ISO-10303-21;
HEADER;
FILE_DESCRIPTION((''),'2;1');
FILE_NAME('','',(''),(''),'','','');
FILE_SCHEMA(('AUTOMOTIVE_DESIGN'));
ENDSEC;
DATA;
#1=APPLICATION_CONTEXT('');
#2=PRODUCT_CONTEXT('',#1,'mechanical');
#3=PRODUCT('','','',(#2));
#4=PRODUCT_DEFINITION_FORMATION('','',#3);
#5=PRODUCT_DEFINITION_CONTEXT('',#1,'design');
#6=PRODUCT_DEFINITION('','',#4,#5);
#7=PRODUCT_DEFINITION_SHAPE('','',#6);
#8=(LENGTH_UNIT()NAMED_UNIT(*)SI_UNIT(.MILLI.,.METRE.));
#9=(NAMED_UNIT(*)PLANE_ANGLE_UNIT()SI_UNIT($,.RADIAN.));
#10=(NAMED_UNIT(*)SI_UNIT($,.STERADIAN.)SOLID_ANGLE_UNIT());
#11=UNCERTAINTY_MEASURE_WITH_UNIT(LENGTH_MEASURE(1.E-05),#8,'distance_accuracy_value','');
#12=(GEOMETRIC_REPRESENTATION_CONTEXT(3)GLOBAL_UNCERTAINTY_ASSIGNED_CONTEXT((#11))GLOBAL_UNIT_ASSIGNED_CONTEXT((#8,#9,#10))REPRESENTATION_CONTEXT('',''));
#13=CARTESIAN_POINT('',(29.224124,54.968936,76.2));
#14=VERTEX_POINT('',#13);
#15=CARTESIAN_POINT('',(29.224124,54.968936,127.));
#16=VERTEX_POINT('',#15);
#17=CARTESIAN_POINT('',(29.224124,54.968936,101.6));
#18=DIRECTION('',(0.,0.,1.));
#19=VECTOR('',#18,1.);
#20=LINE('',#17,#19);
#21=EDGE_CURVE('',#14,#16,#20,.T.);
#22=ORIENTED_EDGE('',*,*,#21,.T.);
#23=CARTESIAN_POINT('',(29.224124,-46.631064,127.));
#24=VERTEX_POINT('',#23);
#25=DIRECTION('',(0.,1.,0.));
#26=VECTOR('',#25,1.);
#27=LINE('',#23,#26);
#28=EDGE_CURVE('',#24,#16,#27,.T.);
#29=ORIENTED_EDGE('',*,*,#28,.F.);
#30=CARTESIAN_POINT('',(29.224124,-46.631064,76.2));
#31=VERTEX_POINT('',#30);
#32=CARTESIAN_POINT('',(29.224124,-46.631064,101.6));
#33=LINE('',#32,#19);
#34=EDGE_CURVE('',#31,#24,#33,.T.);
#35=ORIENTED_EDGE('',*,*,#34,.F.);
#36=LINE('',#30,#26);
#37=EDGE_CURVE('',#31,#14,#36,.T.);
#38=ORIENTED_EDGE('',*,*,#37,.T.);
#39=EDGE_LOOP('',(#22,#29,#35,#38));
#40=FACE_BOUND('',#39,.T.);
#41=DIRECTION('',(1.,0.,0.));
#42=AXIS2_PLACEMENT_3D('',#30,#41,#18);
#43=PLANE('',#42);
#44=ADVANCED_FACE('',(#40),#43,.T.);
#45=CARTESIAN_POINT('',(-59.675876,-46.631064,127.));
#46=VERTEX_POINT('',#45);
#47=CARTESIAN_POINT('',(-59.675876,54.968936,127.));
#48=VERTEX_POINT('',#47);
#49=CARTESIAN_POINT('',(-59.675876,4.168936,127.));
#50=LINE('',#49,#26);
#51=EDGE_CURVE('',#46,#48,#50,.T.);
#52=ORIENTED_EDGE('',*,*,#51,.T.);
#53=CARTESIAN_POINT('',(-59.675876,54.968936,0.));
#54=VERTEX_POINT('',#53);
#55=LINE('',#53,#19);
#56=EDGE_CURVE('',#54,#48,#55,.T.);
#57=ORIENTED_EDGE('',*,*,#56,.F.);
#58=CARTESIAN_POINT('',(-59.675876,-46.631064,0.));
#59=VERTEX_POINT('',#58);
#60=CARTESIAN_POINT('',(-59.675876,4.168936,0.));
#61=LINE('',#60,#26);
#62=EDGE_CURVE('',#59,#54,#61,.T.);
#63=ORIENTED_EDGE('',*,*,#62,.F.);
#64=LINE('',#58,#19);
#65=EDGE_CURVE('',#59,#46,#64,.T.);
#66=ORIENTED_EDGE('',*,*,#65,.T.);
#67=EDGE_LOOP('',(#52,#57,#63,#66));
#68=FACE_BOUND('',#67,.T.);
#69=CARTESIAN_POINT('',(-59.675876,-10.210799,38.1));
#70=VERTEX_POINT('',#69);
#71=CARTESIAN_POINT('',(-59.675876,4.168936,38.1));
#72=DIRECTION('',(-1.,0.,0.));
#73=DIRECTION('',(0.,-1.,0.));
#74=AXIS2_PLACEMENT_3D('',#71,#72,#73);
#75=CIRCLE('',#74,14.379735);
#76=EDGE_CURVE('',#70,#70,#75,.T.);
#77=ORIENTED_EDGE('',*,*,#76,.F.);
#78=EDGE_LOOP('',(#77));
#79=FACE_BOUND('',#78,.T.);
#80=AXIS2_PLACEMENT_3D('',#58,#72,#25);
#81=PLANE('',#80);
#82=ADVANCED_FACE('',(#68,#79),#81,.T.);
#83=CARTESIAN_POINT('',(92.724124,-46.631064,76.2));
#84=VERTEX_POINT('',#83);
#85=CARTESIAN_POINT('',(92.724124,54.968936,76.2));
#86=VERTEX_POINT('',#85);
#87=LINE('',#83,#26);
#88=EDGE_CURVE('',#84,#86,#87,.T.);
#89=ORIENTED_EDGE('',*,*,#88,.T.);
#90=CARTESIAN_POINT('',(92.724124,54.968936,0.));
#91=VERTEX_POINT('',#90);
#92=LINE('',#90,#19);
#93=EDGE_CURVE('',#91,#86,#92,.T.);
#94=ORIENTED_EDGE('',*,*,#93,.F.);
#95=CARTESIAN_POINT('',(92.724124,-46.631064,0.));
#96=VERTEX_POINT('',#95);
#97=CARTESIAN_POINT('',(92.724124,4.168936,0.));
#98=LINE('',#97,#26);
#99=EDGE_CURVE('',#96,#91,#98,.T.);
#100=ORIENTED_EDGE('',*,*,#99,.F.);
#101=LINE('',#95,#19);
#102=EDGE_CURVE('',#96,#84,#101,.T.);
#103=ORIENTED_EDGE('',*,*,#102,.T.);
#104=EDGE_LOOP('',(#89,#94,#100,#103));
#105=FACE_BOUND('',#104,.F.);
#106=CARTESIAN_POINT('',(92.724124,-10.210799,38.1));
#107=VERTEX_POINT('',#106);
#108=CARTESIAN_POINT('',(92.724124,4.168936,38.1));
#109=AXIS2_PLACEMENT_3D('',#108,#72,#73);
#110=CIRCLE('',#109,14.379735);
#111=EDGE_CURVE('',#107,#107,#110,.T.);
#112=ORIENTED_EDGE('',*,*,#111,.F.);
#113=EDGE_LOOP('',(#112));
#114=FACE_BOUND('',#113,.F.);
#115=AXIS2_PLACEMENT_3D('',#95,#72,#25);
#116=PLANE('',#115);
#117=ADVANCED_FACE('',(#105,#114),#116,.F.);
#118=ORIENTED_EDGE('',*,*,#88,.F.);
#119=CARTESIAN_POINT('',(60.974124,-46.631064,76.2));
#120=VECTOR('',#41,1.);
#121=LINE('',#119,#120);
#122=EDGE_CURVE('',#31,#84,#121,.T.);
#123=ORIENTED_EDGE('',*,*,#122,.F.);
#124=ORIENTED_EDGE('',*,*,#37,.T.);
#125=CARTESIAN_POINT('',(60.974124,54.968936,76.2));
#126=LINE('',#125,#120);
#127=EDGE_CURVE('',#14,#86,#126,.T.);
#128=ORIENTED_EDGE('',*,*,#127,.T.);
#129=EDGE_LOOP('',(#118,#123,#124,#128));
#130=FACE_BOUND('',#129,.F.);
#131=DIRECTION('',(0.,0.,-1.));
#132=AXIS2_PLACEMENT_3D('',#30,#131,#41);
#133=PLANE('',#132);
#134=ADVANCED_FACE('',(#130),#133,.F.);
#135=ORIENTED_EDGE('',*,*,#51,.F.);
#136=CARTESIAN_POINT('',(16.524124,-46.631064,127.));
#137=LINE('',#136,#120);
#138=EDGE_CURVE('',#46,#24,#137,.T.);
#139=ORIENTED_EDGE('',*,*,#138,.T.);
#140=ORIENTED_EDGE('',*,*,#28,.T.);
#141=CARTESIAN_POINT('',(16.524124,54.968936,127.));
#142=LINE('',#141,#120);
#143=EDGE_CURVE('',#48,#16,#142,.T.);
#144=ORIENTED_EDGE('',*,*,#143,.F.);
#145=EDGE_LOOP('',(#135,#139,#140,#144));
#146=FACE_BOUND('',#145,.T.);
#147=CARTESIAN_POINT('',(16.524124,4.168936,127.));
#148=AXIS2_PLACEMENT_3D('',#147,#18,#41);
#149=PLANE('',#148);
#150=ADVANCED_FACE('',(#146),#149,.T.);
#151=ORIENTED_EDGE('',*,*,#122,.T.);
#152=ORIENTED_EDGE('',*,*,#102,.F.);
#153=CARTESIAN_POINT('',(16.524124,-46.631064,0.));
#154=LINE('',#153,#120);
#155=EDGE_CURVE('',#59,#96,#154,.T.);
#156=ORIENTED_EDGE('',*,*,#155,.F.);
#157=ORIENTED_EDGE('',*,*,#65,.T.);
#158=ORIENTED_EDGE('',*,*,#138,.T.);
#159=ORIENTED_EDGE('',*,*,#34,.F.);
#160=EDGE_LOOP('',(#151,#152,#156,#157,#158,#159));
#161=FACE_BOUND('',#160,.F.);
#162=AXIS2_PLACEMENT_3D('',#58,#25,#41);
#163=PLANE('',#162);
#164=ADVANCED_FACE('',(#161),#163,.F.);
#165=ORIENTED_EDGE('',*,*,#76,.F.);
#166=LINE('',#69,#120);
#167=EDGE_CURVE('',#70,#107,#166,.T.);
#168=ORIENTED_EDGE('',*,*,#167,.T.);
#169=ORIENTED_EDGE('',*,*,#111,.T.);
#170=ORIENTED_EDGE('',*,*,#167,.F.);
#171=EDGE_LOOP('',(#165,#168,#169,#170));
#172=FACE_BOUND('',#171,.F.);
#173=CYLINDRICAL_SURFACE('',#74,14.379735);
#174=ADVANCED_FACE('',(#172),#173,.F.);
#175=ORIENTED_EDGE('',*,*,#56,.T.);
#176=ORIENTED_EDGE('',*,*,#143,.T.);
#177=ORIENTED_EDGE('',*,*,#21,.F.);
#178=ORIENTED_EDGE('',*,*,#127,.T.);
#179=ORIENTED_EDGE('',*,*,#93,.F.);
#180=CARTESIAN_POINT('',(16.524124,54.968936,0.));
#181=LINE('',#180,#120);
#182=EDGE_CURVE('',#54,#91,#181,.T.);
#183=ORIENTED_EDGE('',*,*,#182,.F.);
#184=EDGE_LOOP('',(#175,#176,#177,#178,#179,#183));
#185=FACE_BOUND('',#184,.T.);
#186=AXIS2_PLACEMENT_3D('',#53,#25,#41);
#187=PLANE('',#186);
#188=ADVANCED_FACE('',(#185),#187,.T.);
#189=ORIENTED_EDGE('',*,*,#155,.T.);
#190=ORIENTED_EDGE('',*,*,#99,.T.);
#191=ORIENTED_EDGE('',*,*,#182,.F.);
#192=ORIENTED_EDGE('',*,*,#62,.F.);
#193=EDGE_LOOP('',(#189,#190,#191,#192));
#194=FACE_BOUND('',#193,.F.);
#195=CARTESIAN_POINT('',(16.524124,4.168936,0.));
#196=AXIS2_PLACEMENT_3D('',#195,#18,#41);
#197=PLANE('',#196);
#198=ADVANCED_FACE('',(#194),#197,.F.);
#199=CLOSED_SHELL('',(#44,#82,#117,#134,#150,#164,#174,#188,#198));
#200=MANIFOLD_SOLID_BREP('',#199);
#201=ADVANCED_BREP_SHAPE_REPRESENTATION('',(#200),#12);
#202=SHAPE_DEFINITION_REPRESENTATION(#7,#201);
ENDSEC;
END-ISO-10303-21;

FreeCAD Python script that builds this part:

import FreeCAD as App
import Part
import Sketcher
Q = App.Units.Quantity

doc = App.newDocument("Part")
body = doc.addObject("PartDesign::Body", "Body")

# Sketch on XY plane
sketch1 = body.newObject("Sketcher::SketchObject", "Sketch")
sketch1.AttachmentSupport = (doc.getObject("XY_Plane"), [""])
sketch1.MapMode = "FlatFace"
sketch1.addGeometry([
    Part.LineSegment(App.Vector(-60, 55, 0), App.Vector(-60, -47, 0)),
    Part.LineSegment(App.Vector(-60, -47, 0), App.Vector(93, -47, 0)),
    Part.LineSegment(App.Vector(93, -47, 0), App.Vector(93, 55, 0)),
    Part.LineSegment(App.Vector(93, 55, 0), App.Vector(-60, 55, 0)),
], False)
sketch1.addConstraint([
    Sketcher.Constraint("Coincident", 0, 2, 1, 1),
    Sketcher.Constraint("Coincident", 1, 2, 2, 1),
    Sketcher.Constraint("Coincident", 2, 2, 3, 1),
    Sketcher.Constraint("Coincident", 3, 2, 0, 1),
    Sketcher.Constraint("Vertical", 0),
    Sketcher.Constraint("Horizontal", 1),
    Sketcher.Constraint("Vertical", 2),
    Sketcher.Constraint("Horizontal", 3),
    Sketcher.Constraint("DistanceX", 1, 1, 1, 2, Q("6 in")),
    Sketcher.Constraint("DistanceY", 0, 2, 0, 1, Q("4 in")),
    Sketcher.Constraint("DistanceX", 0, 2, -1, 1, Q("59.675876 mm")),
    Sketcher.Constraint("DistanceY", 0, 2, -1, 1, Q("46.631064 mm")),
])
pad1 = body.newObject("PartDesign::Pad", "Pad")
pad1.Profile = sketch1
pad1.Length = Q("5 in")

# Sketch on XZ plane
sketch2 = body.newObject("Sketcher::SketchObject", "Sketch001")
sketch2.AttachmentSupport = (doc.getObject("XZ_Plane"), [""])
sketch2.MapMode = "FlatFace"
sketch2.AttachmentOffset = App.Placement(App.Vector(0, 0, 46.631064), App.Rotation())
sketch2.addGeometry([
    Part.LineSegment(App.Vector(29, 127, 0), App.Vector(29, 76, 0)),
    Part.LineSegment(App.Vector(29, 76, 0), App.Vector(93, 76, 0)),
    Part.LineSegment(App.Vector(93, 76, 0), App.Vector(93, 127, 0)),
    Part.LineSegment(App.Vector(93, 127, 0), App.Vector(29, 127, 0)),
], False)
sketch2.addConstraint([
    Sketcher.Constraint("Coincident", 0, 2, 1, 1),
    Sketcher.Constraint("Coincident", 1, 2, 2, 1),
    Sketcher.Constraint("Coincident", 2, 2, 3, 1),
    Sketcher.Constraint("Coincident", 3, 2, 0, 1),
    Sketcher.Constraint("Vertical", 0),
    Sketcher.Constraint("Horizontal", 1),
    Sketcher.Constraint("Vertical", 2),
    Sketcher.Constraint("Horizontal", 3),
    Sketcher.Constraint("DistanceY", 0, 2, 0, 1, Q("2 in")),
    Sketcher.Constraint("DistanceX", 1, 1, 1, 2, Q("2.5 in")),
    Sketcher.Constraint("DistanceY", -1, 1, 0, 2, Q("3 in")),
    Sketcher.Constraint("DistanceX", -1, 1, 0, 2, Q("29.224124 mm")),
])
pocket1 = body.newObject("PartDesign::Pocket", "Pocket")
pocket1.Profile = sketch2
pocket1.Length = Q("4 in")

# Sketch on YZ plane
sketch3 = body.newObject("Sketcher::SketchObject", "Sketch002")
sketch3.AttachmentSupport = (doc.getObject("YZ_Plane"), [""])
sketch3.MapMode = "FlatFace"
sketch3.AttachmentOffset = App.Placement(App.Vector(0, 0, -59.675876), App.Rotation())
sketch3.addGeometry(Part.Circle(App.Vector(4, 38, 0), App.Vector(0, 0, 1), 14), False)
sketch3.addConstraint([
    Sketcher.Constraint("DistanceY", -1, 1, 0, 3, Q("1.5 in")),
    Sketcher.Constraint("Diameter", 0, Q("28.75947 mm")),
    Sketcher.Constraint("DistanceX", -1, 1, 0, 3, Q("4.168936 mm")),
])
pocket2 = body.newObject("PartDesign::Pocket", "Pocket001")
pocket2.Profile = sketch3
pocket2.Length = Q("6 in")
pocket2.Reversed = True

doc.recompute()
